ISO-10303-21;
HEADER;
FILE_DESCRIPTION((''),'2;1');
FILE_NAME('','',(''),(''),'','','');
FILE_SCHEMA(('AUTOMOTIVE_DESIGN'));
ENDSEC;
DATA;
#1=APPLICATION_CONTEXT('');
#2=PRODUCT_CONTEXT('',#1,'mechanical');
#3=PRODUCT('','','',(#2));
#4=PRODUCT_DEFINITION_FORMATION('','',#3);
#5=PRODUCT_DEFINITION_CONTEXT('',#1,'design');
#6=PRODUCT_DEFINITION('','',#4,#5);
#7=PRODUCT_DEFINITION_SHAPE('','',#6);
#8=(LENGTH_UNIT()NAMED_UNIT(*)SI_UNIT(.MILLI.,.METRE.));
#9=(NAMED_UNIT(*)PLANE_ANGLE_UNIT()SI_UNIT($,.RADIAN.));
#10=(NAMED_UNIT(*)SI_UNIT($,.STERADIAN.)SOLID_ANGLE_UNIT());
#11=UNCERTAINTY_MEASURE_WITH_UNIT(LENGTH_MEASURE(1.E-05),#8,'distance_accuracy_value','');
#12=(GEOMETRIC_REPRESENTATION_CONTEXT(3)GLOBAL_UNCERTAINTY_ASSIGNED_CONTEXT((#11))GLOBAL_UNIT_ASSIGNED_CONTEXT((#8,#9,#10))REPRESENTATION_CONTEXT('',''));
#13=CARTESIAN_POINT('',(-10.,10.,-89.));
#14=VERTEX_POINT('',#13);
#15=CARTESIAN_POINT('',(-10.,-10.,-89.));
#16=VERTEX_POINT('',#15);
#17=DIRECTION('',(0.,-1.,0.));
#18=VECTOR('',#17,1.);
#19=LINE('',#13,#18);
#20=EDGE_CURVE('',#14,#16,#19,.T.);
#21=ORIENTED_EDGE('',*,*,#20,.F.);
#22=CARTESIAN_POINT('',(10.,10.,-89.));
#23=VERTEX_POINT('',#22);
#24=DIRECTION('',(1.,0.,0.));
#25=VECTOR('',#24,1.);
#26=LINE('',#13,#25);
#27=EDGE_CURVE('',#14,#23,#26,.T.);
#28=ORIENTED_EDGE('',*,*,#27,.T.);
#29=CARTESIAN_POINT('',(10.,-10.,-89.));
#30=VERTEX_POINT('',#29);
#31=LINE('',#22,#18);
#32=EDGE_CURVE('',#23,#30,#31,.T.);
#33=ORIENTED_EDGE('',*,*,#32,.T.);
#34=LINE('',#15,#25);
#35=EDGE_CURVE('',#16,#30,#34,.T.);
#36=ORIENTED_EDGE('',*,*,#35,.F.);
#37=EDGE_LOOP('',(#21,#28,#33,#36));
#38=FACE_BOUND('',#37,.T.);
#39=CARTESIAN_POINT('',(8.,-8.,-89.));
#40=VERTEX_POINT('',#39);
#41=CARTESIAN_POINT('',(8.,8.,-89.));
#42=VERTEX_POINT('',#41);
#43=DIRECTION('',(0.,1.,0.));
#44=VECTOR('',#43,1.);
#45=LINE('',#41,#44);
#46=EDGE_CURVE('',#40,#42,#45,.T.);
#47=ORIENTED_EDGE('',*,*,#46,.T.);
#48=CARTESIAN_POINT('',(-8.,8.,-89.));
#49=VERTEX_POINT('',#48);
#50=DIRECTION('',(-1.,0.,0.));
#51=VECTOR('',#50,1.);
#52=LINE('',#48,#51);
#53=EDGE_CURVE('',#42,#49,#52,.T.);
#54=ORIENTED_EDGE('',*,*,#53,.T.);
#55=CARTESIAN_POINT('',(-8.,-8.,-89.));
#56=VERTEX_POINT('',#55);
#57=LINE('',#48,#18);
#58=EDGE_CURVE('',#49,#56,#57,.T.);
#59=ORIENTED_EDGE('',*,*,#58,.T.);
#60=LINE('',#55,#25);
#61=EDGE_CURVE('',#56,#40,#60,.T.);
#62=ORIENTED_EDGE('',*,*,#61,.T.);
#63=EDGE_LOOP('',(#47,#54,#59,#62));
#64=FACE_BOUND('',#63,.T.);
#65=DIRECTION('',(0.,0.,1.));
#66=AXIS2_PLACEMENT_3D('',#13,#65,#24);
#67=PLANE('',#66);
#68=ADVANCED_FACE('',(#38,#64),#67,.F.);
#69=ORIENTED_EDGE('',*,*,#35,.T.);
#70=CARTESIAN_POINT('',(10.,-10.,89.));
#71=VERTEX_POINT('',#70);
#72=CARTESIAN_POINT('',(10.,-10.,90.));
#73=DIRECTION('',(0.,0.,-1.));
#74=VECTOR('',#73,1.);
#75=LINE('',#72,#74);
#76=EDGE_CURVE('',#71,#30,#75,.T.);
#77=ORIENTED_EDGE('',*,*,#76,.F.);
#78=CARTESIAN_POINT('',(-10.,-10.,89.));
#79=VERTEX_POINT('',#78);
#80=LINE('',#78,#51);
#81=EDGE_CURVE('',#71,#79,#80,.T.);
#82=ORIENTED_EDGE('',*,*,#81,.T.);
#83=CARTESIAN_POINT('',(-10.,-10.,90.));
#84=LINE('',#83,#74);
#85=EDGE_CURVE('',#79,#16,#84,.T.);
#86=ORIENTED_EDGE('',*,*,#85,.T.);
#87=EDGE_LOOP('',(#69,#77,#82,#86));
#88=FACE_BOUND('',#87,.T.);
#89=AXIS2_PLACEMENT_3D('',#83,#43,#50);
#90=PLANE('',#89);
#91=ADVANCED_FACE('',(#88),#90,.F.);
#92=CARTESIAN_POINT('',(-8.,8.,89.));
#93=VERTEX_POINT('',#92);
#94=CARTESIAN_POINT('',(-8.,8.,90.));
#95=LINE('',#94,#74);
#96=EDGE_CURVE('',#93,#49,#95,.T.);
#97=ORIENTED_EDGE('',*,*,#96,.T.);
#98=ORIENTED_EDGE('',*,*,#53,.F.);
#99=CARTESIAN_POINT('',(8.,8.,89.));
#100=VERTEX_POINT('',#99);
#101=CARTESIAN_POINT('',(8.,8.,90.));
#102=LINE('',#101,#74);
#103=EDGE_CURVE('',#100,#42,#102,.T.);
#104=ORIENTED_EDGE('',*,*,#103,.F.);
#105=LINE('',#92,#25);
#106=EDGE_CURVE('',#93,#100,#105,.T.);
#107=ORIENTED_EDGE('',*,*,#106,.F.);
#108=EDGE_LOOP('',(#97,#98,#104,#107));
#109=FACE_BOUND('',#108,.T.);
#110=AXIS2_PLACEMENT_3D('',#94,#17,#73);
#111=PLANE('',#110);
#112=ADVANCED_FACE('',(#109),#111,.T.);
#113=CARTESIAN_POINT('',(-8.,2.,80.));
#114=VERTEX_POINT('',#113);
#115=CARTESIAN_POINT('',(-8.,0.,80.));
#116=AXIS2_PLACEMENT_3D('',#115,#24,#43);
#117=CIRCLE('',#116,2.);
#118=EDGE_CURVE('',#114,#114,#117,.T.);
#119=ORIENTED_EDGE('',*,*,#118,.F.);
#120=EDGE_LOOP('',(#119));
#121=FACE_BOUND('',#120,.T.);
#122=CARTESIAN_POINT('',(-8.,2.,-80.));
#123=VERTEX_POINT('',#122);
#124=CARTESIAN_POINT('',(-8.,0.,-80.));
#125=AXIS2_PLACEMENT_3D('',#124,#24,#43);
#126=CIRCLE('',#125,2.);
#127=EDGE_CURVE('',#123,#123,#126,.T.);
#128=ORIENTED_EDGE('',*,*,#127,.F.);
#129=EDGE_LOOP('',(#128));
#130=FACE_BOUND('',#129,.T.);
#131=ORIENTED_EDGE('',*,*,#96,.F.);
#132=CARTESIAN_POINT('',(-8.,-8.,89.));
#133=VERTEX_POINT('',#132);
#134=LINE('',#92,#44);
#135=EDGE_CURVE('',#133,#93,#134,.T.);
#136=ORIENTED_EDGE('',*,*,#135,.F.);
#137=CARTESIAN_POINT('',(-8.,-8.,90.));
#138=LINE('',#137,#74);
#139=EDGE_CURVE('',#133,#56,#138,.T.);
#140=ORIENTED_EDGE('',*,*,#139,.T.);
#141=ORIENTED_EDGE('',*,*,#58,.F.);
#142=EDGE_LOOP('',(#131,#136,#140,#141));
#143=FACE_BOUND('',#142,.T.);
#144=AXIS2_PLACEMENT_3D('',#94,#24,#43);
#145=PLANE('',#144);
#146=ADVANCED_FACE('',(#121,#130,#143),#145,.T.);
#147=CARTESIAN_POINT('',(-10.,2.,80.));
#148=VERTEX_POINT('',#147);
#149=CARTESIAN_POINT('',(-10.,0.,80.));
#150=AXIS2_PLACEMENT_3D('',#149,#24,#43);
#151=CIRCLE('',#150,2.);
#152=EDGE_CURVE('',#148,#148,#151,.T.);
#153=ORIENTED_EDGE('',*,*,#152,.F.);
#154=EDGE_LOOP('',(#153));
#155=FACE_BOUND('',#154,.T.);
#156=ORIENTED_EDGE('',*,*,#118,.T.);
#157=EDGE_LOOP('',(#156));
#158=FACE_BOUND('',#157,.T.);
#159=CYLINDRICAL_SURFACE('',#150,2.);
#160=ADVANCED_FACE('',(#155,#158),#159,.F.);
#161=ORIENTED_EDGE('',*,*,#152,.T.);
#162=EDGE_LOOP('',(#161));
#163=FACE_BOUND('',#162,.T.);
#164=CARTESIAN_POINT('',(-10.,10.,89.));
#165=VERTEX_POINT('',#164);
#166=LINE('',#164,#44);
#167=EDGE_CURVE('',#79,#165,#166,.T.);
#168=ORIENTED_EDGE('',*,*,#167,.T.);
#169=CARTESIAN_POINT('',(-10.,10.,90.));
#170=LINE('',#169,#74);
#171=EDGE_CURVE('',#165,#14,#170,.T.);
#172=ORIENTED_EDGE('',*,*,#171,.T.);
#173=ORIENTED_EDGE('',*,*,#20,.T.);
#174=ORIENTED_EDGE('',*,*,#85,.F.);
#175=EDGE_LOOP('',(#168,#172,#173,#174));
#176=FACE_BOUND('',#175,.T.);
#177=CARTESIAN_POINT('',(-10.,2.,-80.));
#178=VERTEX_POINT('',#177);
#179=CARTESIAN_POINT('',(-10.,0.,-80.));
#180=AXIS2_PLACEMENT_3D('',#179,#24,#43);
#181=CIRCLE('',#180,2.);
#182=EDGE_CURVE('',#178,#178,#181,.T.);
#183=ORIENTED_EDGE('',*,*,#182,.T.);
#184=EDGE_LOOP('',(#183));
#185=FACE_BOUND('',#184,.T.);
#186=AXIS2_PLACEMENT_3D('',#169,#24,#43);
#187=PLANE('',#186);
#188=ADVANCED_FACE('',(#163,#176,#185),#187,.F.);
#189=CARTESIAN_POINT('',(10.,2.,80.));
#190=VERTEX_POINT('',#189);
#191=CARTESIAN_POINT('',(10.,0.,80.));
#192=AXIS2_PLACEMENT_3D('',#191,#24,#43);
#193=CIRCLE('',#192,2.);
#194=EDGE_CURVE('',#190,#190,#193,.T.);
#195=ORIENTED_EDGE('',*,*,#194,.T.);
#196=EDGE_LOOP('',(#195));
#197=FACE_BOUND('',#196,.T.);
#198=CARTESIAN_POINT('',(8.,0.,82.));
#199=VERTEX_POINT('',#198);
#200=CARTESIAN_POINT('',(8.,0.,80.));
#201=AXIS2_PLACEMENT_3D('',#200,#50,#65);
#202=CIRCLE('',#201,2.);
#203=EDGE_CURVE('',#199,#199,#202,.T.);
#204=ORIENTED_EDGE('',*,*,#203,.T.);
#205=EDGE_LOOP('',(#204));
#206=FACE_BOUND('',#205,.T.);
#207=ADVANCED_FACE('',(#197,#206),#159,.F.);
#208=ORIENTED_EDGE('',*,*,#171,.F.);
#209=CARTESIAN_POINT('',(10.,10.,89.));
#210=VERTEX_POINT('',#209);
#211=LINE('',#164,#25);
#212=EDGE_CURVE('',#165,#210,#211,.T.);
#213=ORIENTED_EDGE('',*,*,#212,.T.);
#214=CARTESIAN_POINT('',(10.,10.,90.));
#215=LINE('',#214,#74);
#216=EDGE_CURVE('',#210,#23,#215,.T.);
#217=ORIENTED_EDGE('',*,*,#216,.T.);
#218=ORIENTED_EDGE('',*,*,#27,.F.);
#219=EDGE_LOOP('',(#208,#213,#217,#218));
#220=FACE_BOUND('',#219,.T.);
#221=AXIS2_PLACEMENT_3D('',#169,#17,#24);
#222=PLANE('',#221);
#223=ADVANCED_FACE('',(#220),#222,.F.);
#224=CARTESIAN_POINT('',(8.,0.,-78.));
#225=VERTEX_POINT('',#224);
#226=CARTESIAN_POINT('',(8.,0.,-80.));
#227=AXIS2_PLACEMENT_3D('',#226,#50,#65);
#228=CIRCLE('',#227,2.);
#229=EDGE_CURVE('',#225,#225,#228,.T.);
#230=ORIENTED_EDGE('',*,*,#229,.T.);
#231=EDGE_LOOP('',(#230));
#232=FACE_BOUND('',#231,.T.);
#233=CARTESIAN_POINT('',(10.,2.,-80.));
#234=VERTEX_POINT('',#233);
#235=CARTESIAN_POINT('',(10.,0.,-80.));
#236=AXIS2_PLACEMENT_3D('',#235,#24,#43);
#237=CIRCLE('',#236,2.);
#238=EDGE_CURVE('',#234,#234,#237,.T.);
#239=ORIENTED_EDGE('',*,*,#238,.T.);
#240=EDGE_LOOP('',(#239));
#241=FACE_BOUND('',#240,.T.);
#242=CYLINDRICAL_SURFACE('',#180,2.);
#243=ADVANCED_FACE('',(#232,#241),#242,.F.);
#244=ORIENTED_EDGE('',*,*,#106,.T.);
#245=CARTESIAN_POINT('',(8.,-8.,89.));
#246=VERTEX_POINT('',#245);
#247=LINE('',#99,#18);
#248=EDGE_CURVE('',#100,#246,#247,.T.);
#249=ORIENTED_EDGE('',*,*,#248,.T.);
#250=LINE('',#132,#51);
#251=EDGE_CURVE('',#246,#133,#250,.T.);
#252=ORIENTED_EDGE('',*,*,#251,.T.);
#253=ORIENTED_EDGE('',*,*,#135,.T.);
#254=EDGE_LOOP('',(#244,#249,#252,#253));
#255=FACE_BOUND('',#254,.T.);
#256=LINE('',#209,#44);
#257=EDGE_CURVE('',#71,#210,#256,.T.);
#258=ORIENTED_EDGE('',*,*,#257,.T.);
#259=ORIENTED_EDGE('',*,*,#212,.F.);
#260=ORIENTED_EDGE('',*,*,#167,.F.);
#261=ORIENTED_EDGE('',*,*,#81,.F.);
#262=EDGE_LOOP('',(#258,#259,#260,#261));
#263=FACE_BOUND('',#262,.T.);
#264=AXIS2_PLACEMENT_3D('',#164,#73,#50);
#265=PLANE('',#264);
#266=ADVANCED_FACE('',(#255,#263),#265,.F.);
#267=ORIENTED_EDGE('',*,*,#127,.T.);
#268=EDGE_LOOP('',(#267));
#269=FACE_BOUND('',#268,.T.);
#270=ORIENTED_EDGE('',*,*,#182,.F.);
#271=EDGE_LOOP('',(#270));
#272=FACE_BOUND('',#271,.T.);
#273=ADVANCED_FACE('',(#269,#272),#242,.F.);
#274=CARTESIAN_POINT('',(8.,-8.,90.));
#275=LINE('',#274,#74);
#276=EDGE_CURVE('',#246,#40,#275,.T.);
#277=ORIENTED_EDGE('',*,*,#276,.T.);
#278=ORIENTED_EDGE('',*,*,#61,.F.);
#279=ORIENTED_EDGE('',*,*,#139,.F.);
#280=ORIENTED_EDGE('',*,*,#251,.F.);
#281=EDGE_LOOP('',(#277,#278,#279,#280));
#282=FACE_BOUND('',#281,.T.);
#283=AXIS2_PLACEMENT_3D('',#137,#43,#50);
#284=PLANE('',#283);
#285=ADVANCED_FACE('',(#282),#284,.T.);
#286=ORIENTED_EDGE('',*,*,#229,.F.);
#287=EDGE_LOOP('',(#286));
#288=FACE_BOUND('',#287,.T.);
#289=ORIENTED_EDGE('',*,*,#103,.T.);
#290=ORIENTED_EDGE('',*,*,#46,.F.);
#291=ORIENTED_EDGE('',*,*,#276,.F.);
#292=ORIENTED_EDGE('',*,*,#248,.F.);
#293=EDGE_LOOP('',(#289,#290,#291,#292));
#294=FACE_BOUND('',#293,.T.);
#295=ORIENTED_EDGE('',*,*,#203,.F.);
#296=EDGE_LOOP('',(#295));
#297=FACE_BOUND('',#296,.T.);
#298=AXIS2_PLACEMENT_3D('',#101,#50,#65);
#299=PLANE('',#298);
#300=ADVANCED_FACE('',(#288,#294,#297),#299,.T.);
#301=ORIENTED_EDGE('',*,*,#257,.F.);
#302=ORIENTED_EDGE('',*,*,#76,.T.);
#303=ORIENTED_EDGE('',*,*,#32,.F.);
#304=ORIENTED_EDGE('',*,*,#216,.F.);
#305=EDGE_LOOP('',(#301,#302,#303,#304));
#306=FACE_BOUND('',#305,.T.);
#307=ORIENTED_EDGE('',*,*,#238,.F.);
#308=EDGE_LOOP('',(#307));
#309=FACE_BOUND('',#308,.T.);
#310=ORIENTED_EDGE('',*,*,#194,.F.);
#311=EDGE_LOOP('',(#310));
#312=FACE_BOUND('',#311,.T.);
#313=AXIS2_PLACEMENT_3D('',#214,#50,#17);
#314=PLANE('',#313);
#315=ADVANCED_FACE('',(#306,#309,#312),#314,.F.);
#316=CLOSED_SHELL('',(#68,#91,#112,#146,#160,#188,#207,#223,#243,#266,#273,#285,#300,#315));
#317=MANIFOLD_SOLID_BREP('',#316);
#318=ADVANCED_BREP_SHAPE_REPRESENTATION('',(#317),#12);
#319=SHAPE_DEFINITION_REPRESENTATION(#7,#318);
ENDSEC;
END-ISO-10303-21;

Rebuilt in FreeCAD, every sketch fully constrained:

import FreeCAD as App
import Part
import Sketcher
from FreeCAD import Vector

doc = App.newDocument("Part")
body = doc.addObject("PartDesign::Body", "Body")

sketch1 = body.newObject("Sketcher::SketchObject", "Sketch")
sketch1.AttachmentSupport = (doc.getObject("XY_Plane"), [""])
sketch1.MapMode = "FlatFace"
sketch1.addGeometry(Part.LineSegment(Vector(-10, 10, 0), Vector(-10, -10, 0)), False)
sketch1.addGeometry(Part.LineSegment(Vector(-10, -10, 0), Vector(10, -10, 0)), False)
sketch1.addGeometry(Part.LineSegment(Vector(10, -10, 0), Vector(10, 10, 0)), False)
sketch1.addGeometry(Part.LineSegment(Vector(10, 10, 0), Vector(-10, 10, 0)), False)
sketch1.addGeometry(Part.LineSegment(Vector(8, -8, 0), Vector(-8, -8, 0)), False)
sketch1.addGeometry(Part.LineSegment(Vector(-8, -8, 0), Vector(-8, 8, 0)), False)
sketch1.addGeometry(Part.LineSegment(Vector(-8, 8, 0), Vector(8, 8, 0)), False)
sketch1.addGeometry(Part.LineSegment(Vector(8, 8, 0), Vector(8, -8, 0)), False)
sketch1.addConstraint(Sketcher.Constraint("Coincident", 0, 2, 1, 1))
sketch1.addConstraint(Sketcher.Constraint("Coincident", 1, 2, 2, 1))
sketch1.addConstraint(Sketcher.Constraint("Coincident", 2, 2, 3, 1))
sketch1.addConstraint(Sketcher.Constraint("Coincident", 3, 2, 0, 1))
sketch1.addConstraint(Sketcher.Constraint("Coincident", 4, 2, 5, 1))
sketch1.addConstraint(Sketcher.Constraint("Coincident", 5, 2, 6, 1))
sketch1.addConstraint(Sketcher.Constraint("Coincident", 6, 2, 7, 1))
sketch1.addConstraint(Sketcher.Constraint("Coincident", 7, 2, 4, 1))
sketch1.addConstraint(Sketcher.Constraint("Vertical", 0))
sketch1.addConstraint(Sketcher.Constraint("Horizontal", 1))
sketch1.addConstraint(Sketcher.Constraint("Vertical", 2))
sketch1.addConstraint(Sketcher.Constraint("Horizontal", 3))
sketch1.addConstraint(Sketcher.Constraint("Horizontal", 4))
sketch1.addConstraint(Sketcher.Constraint("Vertical", 5))
sketch1.addConstraint(Sketcher.Constraint("Horizontal", 6))
sketch1.addConstraint(Sketcher.Constraint("Vertical", 7))
sketch1.addConstraint(Sketcher.Constraint("Symmetric", 0, 2, 2, 2, -1, 1))
sketch1.addConstraint(Sketcher.Constraint("Symmetric", 4, 2, 6, 2, -1, 1))
sketch1.addConstraint(Sketcher.Constraint("Equal", 3, 0))
sketch1.addConstraint(Sketcher.Constraint("Equal", 6, 5))
sketch1.addConstraint(Sketcher.Constraint("DistanceX", 1, 1, 1, 2, 20.0))
sketch1.addConstraint(Sketcher.Constraint("DistanceX", 4, 2, 4, 1, 16.0))
pad1 = body.newObject("PartDesign::Pad", "Pad")
pad1.Profile = sketch1
pad1.Length = 180
pad1.Midplane = True

sketch2 = body.newObject("Sketcher::SketchObject", "Sketch001")
sketch2.AttachmentSupport = (doc.getObject("YZ_Plane"), [""])
sketch2.MapMode = "FlatFace"
sketch2.AttachmentOffset = App.Placement(Vector(0, 0, 10), App.Rotation())
sketch2.addGeometry(Part.Circle(Vector(0, -80, 0), Vector(0, 0, 1), 2), False)
sketch2.addGeometry(Part.Circle(Vector(0, 80, 0), Vector(0, 0, 1), 2), False)
sketch2.addConstraint(Sketcher.Constraint("Equal", 0, 1))
sketch2.addConstraint(Sketcher.Constraint("Symmetric", 0, 3, 1, 3, -1, 1))
sketch2.addConstraint(Sketcher.Constraint("PointOnObject", 0, 3, -2))
sketch2.addConstraint(Sketcher.Constraint("Diameter", 0, 4.0))
sketch2.addConstraint(Sketcher.Constraint("DistanceY", 0, 3, -1, 1, 80.0))
pocket1 = body.newObject("PartDesign::Pocket", "Pocket")
pocket1.Profile = sketch2
pocket1.Type = "ThroughAll"

sketch3 = body.newObject("Sketcher::SketchObject", "Sketch002")
sketch3.AttachmentSupport = (doc.getObject("YZ_Plane"), [""])
sketch3.MapMode = "FlatFace"
sketch3.AttachmentOffset = App.Placement(Vector(0, 0, 10), App.Rotation())
sketch3.addGeometry(Part.LineSegment(Vector(10, 89, 0), Vector(10, 96, 0)), False)
sketch3.addGeometry(Part.LineSegment(Vector(10, 96, 0), Vector(-15, 96, 0)), False)
sketch3.addGeometry(Part.LineSegment(Vector(-15, 96, 0), Vector(-15, 89, 0)), False)
sketch3.addGeometry(Part.LineSegment(Vector(-15, 89, 0), Vector(10, 89, 0)), False)
sketch3.addGeometry(Part.LineSegment(Vector(-15, -89, 0), Vector(-15, -96, 0)), False)
sketch3.addGeometry(Part.LineSegment(Vector(-15, -96, 0), Vector(10, -96, 0)), False)
sketch3.addGeometry(Part.LineSegment(Vector(10, -96, 0), Vector(10, -89, 0)), False)
sketch3.addGeometry(Part.LineSegment(Vector(10, -89, 0), Vector(-15, -89, 0)), False)
sketch3.addConstraint(Sketcher.Constraint("Coincident", 0, 2, 1, 1))
sketch3.addConstraint(Sketcher.Constraint("Coincident", 1, 2, 2, 1))
sketch3.addConstraint(Sketcher.Constraint("Coincident", 2, 2, 3, 1))
sketch3.addConstraint(Sketcher.Constraint("Coincident", 3, 2, 0, 1))
sketch3.addConstraint(Sketcher.Constraint("Coincident", 4, 2, 5, 1))
sketch3.addConstraint(Sketcher.Constraint("Coincident", 5, 2, 6, 1))
sketch3.addConstraint(Sketcher.Constraint("Coincident", 6, 2, 7, 1))
sketch3.addConstraint(Sketcher.Constraint("Coincident", 7, 2, 4, 1))
sketch3.addConstraint(Sketcher.Constraint("Vertical", 0))
sketch3.addConstraint(Sketcher.Constraint("Horizontal", 1))
sketch3.addConstraint(Sketcher.Constraint("Vertical", 2))
sketch3.addConstraint(Sketcher.Constraint("Horizontal", 3))
sketch3.addConstraint(Sketcher.Constraint("Vertical", 4))
sketch3.addConstraint(Sketcher.Constraint("Horizontal", 5))
sketch3.addConstraint(Sketcher.Constraint("Vertical", 6))
sketch3.addConstraint(Sketcher.Constraint("Horizontal", 7))
sketch3.addConstraint(Sketcher.Constraint("Symmetric", 1, 2, 4, 2, -1))
sketch3.addConstraint(Sketcher.Constraint("Symmetric", 3, 2, 6, 2, -1))
sketch3.addConstraint(Sketcher.Constraint("DistanceX", -1, 1, 0, 2, 10.0))
sketch3.addConstraint(Sketcher.Constraint("DistanceY", -1, 1, 2, 2, 89.0))
sketch3.addConstraint(Sketcher.Constraint("DistanceX", 1, 2, 1, 1, 25.299098))
sketch3.addConstraint(Sketcher.Constraint("DistanceY", 0, 1, 0, 2, 6.501418))
pocket2 = body.newObject("PartDesign::Pocket", "Pocket001")
pocket2.Profile = sketch3
pocket2.Type = "ThroughAll"

doc.recompute()
